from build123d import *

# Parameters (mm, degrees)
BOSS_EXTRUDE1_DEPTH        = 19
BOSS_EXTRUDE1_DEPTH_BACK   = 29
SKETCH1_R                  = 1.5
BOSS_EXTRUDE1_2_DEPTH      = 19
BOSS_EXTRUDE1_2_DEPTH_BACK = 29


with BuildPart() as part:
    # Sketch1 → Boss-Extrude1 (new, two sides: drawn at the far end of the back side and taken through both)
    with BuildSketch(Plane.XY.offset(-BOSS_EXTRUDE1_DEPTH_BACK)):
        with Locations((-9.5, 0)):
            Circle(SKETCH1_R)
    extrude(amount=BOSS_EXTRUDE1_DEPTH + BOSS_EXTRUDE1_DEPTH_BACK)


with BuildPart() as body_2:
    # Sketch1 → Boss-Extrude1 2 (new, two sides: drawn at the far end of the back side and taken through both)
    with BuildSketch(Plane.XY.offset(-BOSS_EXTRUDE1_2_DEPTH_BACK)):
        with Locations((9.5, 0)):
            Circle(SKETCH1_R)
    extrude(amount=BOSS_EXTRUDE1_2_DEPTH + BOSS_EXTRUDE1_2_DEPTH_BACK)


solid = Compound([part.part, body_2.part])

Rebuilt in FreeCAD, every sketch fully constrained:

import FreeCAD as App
import Part
import Sketcher

V = App.Vector

doc = App.newDocument("Part")
body = doc.addObject("PartDesign::Body", "Body")

# Sketch on XY plane
sketch1 = body.newObject("Sketcher::SketchObject", "Sketch")
sketch1.AttachmentSupport = (doc.getObject("XY_Plane"), [""])
sketch1.MapMode = "FlatFace"
sketch1.addGeometry(Part.Circle(V(-9.5, 0, 0), V(0, 0, 1), 1.5), False)
sketch1.addConstraint([
    Sketcher.Constraint("PointOnObject", 0, 3, -1),
    Sketcher.Constraint("Diameter", 0, 3.0),
    Sketcher.Constraint("DistanceX", 0, 3, -1, 1, 9.5),
])
pad1 = body.newObject("PartDesign::Pad", "Pad")
pad1.Profile = sketch1
pad1.Type = "TwoLengths"
pad1.Length = 19
pad1.Length2 = 29
body2 = doc.addObject("PartDesign::Body", "Body001")

# Sketch on XY plane
sketch2 = body2.newObject("Sketcher::SketchObject", "Sketch001")
sketch2.AttachmentSupport = (doc.getObject("XY_Plane001"), [""])
sketch2.MapMode = "FlatFace"
sketch2.addGeometry(Part.Circle(V(9.5, 0, 0), V(0, 0, 1), 1.5), False)
sketch2.addConstraint([
    Sketcher.Constraint("PointOnObject", 0, 3, -1),
    Sketcher.Constraint("Diameter", 0, 3.0),
    Sketcher.Constraint("DistanceX", -1, 1, 0, 3, 9.5),
])
pad2 = body2.newObject("PartDesign::Pad", "Pad001")
pad2.Profile = sketch2
pad2.Type = "TwoLengths"
pad2.Length = 19
pad2.Length2 = 29

doc.recompute()
